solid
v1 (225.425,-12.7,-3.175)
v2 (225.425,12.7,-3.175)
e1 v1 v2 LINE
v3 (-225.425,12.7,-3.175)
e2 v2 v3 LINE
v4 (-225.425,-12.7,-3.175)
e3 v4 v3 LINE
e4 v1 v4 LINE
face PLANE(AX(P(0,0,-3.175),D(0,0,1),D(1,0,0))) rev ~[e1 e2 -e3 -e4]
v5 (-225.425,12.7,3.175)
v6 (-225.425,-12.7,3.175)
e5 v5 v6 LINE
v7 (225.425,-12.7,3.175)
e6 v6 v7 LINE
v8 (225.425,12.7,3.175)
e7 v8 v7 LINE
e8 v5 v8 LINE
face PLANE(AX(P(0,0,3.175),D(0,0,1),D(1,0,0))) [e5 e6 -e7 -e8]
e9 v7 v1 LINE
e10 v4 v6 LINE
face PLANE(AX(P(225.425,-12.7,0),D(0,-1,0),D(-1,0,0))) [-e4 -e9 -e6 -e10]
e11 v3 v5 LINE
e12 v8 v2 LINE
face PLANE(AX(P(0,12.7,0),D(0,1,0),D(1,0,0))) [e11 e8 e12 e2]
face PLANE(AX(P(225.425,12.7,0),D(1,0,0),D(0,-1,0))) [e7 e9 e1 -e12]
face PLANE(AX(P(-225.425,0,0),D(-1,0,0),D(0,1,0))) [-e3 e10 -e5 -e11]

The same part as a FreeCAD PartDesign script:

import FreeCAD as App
import Part
import Sketcher
Q = App.Units.Quantity


def add_polygon(sketch, points):
    """Adds a closed chain of lines whose ends are joined by coincident constraints."""
    first, n = sketch.GeometryCount, len(points)
    for a, b in zip(points, points[1:] + points[:1]):
        sketch.addGeometry(Part.LineSegment(App.Vector(*a, 0), App.Vector(*b, 0)), False)
    for i in range(n):
        sketch.addConstraint(Sketcher.Constraint("Coincident", first + i, 2, first + (i + 1) % n, 1))

doc = App.newDocument("Part")
body = doc.addObject("PartDesign::Body", "Body")

sketch1 = body.newObject("Sketcher::SketchObject", "Sketch")
sketch1.AttachmentSupport = (doc.getObject("XY_Plane"), [""])
sketch1.MapMode = "FlatFace"
add_polygon(sketch1, [(225, 13), (-225, 13), (-225, -13), (225, -13)])
sketch1.addConstraint(Sketcher.Constraint("Horizontal", 0))
sketch1.addConstraint(Sketcher.Constraint("Vertical", 1))
sketch1.addConstraint(Sketcher.Constraint("Horizontal", 2))
sketch1.addConstraint(Sketcher.Constraint("Vertical", 3))
sketch1.addConstraint(Sketcher.Constraint("Symmetric", 0, 2, 2, 2, -1, 1))
sketch1.addConstraint(Sketcher.Constraint("DistanceY", 1, 2, 1, 1, Q("1 in")))
sketch1.addConstraint(Sketcher.Constraint("DistanceX", 0, 2, 0, 1, Q("17.75 in")))
pad1 = body.newObject("PartDesign::Pad", "Pad")
pad1.Profile = sketch1
pad1.Length = Q("0.25 in")
pad1.Midplane = True

doc.recompute()
